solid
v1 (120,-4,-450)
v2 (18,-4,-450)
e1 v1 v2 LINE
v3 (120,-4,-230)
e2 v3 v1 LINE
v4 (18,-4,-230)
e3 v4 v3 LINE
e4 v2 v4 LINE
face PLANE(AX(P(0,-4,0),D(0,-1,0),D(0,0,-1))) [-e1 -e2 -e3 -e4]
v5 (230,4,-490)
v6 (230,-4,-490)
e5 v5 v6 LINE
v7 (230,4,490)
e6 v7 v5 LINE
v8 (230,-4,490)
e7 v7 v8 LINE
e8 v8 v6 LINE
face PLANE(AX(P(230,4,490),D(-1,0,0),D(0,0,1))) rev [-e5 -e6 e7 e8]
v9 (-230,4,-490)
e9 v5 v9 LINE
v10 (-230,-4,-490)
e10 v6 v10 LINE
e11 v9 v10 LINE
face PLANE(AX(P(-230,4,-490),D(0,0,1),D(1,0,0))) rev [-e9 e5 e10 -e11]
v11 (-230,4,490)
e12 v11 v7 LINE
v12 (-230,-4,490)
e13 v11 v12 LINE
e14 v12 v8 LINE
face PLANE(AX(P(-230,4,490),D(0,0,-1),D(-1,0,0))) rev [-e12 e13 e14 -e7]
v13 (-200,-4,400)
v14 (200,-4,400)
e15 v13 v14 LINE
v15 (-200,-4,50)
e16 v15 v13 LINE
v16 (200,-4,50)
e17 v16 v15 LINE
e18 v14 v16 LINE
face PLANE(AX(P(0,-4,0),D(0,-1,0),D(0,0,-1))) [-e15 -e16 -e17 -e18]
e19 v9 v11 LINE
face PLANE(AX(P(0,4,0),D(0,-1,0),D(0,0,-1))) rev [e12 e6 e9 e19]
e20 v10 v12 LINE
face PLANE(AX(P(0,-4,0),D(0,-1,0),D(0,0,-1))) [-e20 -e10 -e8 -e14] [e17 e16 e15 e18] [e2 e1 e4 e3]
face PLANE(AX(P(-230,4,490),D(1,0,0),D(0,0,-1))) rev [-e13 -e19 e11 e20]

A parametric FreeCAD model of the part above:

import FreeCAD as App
import Part
import Sketcher


def add_polygon(sketch, points):
    """Adds a closed chain of lines whose ends are joined by coincident constraints."""
    first, n = sketch.GeometryCount, len(points)
    for a, b in zip(points, points[1:] + points[:1]):
        sketch.addGeometry(Part.LineSegment(App.Vector(*a, 0), App.Vector(*b, 0)), False)
    for i in range(n):
        sketch.addConstraint(Sketcher.Constraint("Coincident", first + i, 2, first + (i + 1) % n, 1))

doc = App.newDocument("Part")
params = doc.addObject("Spreadsheet::Sheet", "Params")
for row, (alias, value) in enumerate([
    ("sketch1_width", "460 mm"),
    ("sketch1_height", "980 mm"),
    ("pad1_length", "8 mm"),
], start=1):
    params.set(f"A{row}", alias)
    params.set(f"B{row}", "=" + value)
    params.setAlias(f"B{row}", alias)

body = doc.addObject("PartDesign::Body", "Body")

# Sketch on XZ plane
sketch1 = body.newObject("Sketcher::SketchObject", "Sketch")
sketch1.AttachmentSupport = (doc.getObject("XZ_Plane"), [""])
sketch1.MapMode = "FlatFace"
add_polygon(sketch1, [(-230, -490), (-230, 490), (230, 490), (230, -490)])  # lines 0-3
sketch1.addConstraint([
    Sketcher.Constraint("Vertical", 0),
    Sketcher.Constraint("Horizontal", 1),
    Sketcher.Constraint("Vertical", 2),
    Sketcher.Constraint("Horizontal", 3),
    Sketcher.Constraint("Symmetric", 0, 2, 2, 2, -1, 1),
    Sketcher.Constraint("DistanceX", 1, 1, 1, 2, 460.0),
    Sketcher.Constraint("DistanceY", 0, 1, 0, 2, 980.0),
])
sketch1.setExpression("Constraints[9]", "Params.sketch1_width")
sketch1.setExpression("Constraints[10]", "Params.sketch1_height")
pad1 = body.newObject("PartDesign::Pad", "Pad")
pad1.Profile = sketch1
pad1.setExpression("Length", "Params.pad1_length")
pad1.Midplane = True

doc.recompute()
